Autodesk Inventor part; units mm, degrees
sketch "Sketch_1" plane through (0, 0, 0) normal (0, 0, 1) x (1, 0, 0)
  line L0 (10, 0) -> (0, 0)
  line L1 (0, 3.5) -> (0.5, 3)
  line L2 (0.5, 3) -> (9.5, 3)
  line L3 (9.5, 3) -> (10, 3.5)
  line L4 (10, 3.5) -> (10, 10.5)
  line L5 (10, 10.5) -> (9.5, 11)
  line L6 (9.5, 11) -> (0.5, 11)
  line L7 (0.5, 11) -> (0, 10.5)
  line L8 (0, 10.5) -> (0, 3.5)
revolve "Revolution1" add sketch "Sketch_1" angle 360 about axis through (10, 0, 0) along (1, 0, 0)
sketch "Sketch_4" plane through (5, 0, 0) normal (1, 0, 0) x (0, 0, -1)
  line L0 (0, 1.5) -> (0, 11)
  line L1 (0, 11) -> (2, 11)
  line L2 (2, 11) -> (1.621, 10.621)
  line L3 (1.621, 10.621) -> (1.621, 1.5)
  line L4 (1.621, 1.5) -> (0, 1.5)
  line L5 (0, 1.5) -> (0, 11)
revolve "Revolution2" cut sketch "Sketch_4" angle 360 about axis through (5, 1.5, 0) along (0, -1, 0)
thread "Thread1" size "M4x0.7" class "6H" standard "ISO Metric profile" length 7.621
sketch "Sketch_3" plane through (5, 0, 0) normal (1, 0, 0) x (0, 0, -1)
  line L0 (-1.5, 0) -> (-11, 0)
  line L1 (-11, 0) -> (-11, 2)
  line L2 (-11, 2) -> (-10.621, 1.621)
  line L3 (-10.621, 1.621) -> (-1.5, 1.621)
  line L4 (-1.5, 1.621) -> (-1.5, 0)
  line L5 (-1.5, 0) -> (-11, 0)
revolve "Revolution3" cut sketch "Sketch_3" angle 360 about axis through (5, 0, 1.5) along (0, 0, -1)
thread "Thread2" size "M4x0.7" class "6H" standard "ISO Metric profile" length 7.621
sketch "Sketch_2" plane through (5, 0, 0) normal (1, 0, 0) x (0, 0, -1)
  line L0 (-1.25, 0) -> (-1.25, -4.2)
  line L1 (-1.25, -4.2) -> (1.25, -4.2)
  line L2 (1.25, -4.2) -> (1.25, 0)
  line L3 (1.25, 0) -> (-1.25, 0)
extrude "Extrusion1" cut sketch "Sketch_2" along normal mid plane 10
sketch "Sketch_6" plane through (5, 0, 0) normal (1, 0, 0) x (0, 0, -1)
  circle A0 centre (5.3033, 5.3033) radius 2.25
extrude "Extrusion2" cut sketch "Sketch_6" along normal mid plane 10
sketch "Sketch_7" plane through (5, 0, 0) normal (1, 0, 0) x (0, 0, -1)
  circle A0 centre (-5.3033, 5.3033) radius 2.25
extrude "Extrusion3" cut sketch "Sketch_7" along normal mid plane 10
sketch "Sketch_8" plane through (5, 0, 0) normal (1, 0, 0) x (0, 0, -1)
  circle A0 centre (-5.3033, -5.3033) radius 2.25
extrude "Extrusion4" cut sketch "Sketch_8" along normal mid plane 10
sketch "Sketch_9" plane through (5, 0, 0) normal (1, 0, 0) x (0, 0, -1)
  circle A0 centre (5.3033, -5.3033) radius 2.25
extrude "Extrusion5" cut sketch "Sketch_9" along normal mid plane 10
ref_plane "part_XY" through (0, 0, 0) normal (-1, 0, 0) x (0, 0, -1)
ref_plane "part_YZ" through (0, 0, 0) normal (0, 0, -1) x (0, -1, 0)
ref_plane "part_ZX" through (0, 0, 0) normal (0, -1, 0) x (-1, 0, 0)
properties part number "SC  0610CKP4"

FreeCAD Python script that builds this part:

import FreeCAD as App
import Part
import Sketcher
Q = App.Units.Quantity

doc = App.newDocument("Part")
body = doc.addObject("PartDesign::Body", "Body")

# Sketch on XY plane
sketch1 = doc.addObject("Sketcher::SketchObject", "Sketch")
body.addObject(sketch1)
sketch1.AttachmentSupport = (doc.XY_Plane, [""])
sketch1.MapMode = "FlatFace"
sketch1.addGeometry([
    Part.LineSegment(App.Vector(0, 10.5, 0), App.Vector(0, 3.5, 0)),  # 0
    Part.LineSegment(App.Vector(0, 3.5, 0), App.Vector(0.5, 3, 0)),  # 1
    Part.LineSegment(App.Vector(0.5, 3, 0), App.Vector(9.5, 3, 0)),  # 2
    Part.LineSegment(App.Vector(9.5, 3, 0), App.Vector(10, 3.5, 0)),  # 3
    Part.LineSegment(App.Vector(10, 3.5, 0), App.Vector(10, 10.5, 0)),  # 4
    Part.LineSegment(App.Vector(10, 10.5, 0), App.Vector(9.5, 11, 0)),  # 5
    Part.LineSegment(App.Vector(9.5, 11, 0), App.Vector(0.5, 11, 0)),  # 6
    Part.LineSegment(App.Vector(0.5, 11, 0), App.Vector(0, 10.5, 0)),  # 7
], False)
sketch1.addConstraint([
    Sketcher.Constraint("Coincident", 0, 2, 1, 1),
    Sketcher.Constraint("Coincident", 1, 2, 2, 1),
    Sketcher.Constraint("Coincident", 2, 2, 3, 1),
    Sketcher.Constraint("Coincident", 3, 2, 4, 1),
    Sketcher.Constraint("Coincident", 4, 2, 5, 1),
    Sketcher.Constraint("Coincident", 5, 2, 6, 1),
    Sketcher.Constraint("Coincident", 6, 2, 7, 1),
    Sketcher.Constraint("Coincident", 7, 2, 0, 1),
    Sketcher.Constraint("Vertical", 0),
    Sketcher.Constraint("Horizontal", 2),
    Sketcher.Constraint("Vertical", 4),
    Sketcher.Constraint("Horizontal", 6),
    Sketcher.Constraint("PointOnObject", 0, 2, -2),
    Sketcher.Constraint("Perpendicular", 1, 3),
    Sketcher.Constraint("Perpendicular", 3, 5),
    Sketcher.Constraint("Perpendicular", 5, 7),
    Sketcher.Constraint("Horizontal", 0, 2, 3, 2),
    Sketcher.Constraint("Horizontal", 4, 2, 7, 2),
    Sketcher.Constraint("Vertical", 2, 2, 5, 2),
    Sketcher.Constraint("Vertical", 1, 2, 6, 2),
    Sketcher.Constraint("DistanceX", 2, 1, 2, 2, Q("9 mm")),
    Sketcher.Constraint("DistanceY", 0, 2, 0, 1, Q("7 mm")),
    Sketcher.Constraint("DistanceY", -1, 1, 1, 2, Q("3 mm")),
    Sketcher.Constraint("DistanceX", -1, 1, 3, 2, Q("10 mm")),
])
revolution = doc.addObject("PartDesign::Revolution", "Revolution")
body.addObject(revolution)
revolution.Profile = sketch1
revolution.ReferenceAxis = (sketch1, ["H_Axis"])
revolution.Angle = 360

# Sketch on YZ plane
sketch2 = doc.addObject("Sketcher::SketchObject", "Sketch001")
body.addObject(sketch2)
sketch2.AttachmentSupport = (doc.YZ_Plane, [""])
sketch2.MapMode = "FlatFace"
sketch2.AttachmentOffset = App.Placement(App.Vector(0, 0, 5), App.Rotation())
sketch2.addGeometry([
    Part.LineSegment(App.Vector(11, 0, 0), App.Vector(1.5, 0, 0)),  # 0
    Part.LineSegment(App.Vector(1.5, 0, 0), App.Vector(1.5, -1.6, 0)),  # 1
    Part.LineSegment(App.Vector(1.5, -1.6, 0), App.Vector(10.6, -1.6, 0)),  # 2
    Part.LineSegment(App.Vector(10.6, -1.6, 0), App.Vector(11, -2, 0)),  # 3
    Part.LineSegment(App.Vector(11, -2, 0), App.Vector(11, 0, 0)),  # 4
], False)
sketch2.addConstraint([
    Sketcher.Constraint("Coincident", 0, 2, 1, 1),
    Sketcher.Constraint("Coincident", 1, 2, 2, 1),
    Sketcher.Constraint("Coincident", 2, 2, 3, 1),
    Sketcher.Constraint("Coincident", 3, 2, 4, 1),
    Sketcher.Constraint("Coincident", 4, 2, 0, 1),
    Sketcher.Constraint("Horizontal", 0),
    Sketcher.Constraint("Vertical", 1),
    Sketcher.Constraint("Horizontal", 2),
    Sketcher.Constraint("Vertical", 4),
    Sketcher.Constraint("PointOnObject", 0, 2, -1),
    Sketcher.Constraint("DistanceY", 4, 1, 4, 2, Q("2 mm")),
    Sketcher.Constraint("Angle", 3, Q("-45 deg")),
    Sketcher.Constraint("DistanceX", 0, 2, 0, 1, Q("9.5 mm")),
    Sketcher.Constraint("DistanceX", -1, 1, 3, 2, Q("11 mm")),
    Sketcher.Constraint("DistanceX", 2, 1, 2, 2, Q("9.121 mm")),
])
groove = doc.addObject("PartDesign::Groove", "Groove")
body.addObject(groove)
groove.Profile = sketch2
groove.ReferenceAxis = (sketch2, ["H_Axis"])
groove.Angle = 360

# Sketch on YZ plane
sketch3 = doc.addObject("Sketcher::SketchObject", "Sketch002")
body.addObject(sketch3)
sketch3.AttachmentSupport = (doc.YZ_Plane, [""])
sketch3.MapMode = "FlatFace"
sketch3.AttachmentOffset = App.Placement(App.Vector(0, 0, 5), App.Rotation())
sketch3.addGeometry([
    Part.LineSegment(App.Vector(0, 11, 0), App.Vector(0, 1.5, 0)),  # 0
    Part.LineSegment(App.Vector(0, 1.5, 0), App.Vector(1.6, 1.5, 0)),  # 1
    Part.LineSegment(App.Vector(1.6, 1.5, 0), App.Vector(1.6, 10.6, 0)),  # 2
    Part.LineSegment(App.Vector(1.6, 10.6, 0), App.Vector(2, 11, 0)),  # 3
    Part.LineSegment(App.Vector(2, 11, 0), App.Vector(0, 11, 0)),  # 4
], False)
sketch3.addConstraint([
    Sketcher.Constraint("Coincident", 0, 2, 1, 1),
    Sketcher.Constraint("Coincident", 1, 2, 2, 1),
    Sketcher.Constraint("Coincident", 2, 2, 3, 1),
    Sketcher.Constraint("Coincident", 3, 2, 4, 1),
    Sketcher.Constraint("Coincident", 4, 2, 0, 1),
    Sketcher.Constraint("Vertical", 0),
    Sketcher.Constraint("Horizontal", 1),
    Sketcher.Constraint("Vertical", 2),
    Sketcher.Constraint("Horizontal", 4),
    Sketcher.Constraint("PointOnObject", 0, 2, -2),
    Sketcher.Constraint("DistanceX", 4, 2, 4, 1, Q("2 mm")),
    Sketcher.Constraint("Angle", 3, Q("45 deg")),
    Sketcher.Constraint("DistanceY", 0, 2, 0, 1, Q("9.5 mm")),
    Sketcher.Constraint("DistanceY", -1, 1, 3, 2, Q("11 mm")),
    Sketcher.Constraint("DistanceX", 1, 1, 1, 2, Q("1.621 mm")),
])
groove2 = doc.addObject("PartDesign::Groove", "Groove001")
body.addObject(groove2)
groove2.Profile = sketch3
groove2.ReferenceAxis = (sketch3, ["V_Axis"])
groove2.Angle = 360

# Sketch on YZ plane
sketch4 = doc.addObject("Sketcher::SketchObject", "Sketch003")
body.addObject(sketch4)
sketch4.AttachmentSupport = (doc.YZ_Plane, [""])
sketch4.MapMode = "FlatFace"
sketch4.AttachmentOffset = App.Placement(App.Vector(0, 0, 5), App.Rotation())
sketch4.addGeometry([
    Part.LineSegment(App.Vector(0, -1.2, 0), App.Vector(0, 1.2, 0)),
    Part.LineSegment(App.Vector(0, 1.2, 0), App.Vector(-4.2, 1.2, 0)),
    Part.LineSegment(App.Vector(-4.2, 1.2, 0), App.Vector(-4.2, -1.2, 0)),
    Part.LineSegment(App.Vector(-4.2, -1.2, 0), App.Vector(0, -1.2, 0)),
], False)
sketch4.addConstraint([
    Sketcher.Constraint("Coincident", 0, 2, 1, 1),
    Sketcher.Constraint("Coincident", 1, 2, 2, 1),
    Sketcher.Constraint("Coincident", 2, 2, 3, 1),
    Sketcher.Constraint("Coincident", 3, 2, 0, 1),
    Sketcher.Constraint("Vertical", 0),
    Sketcher.Constraint("Horizontal", 1),
    Sketcher.Constraint("Vertical", 2),
    Sketcher.Constraint("Horizontal", 3),
    Sketcher.Constraint("Symmetric", 0, 2, 3, 2, -1, 1),
    Sketcher.Constraint("DistanceX", 1, 2, 1, 1, Q("4.2 mm")),
    Sketcher.Constraint("DistanceY", 0, 1, 0, 2, Q("2.5 mm")),
])
pocket1 = doc.addObject("PartDesign::Pocket", "Pocket")
body.addObject(pocket1)
pocket1.Profile = sketch4
pocket1.Length = 10
pocket1.Midplane = True

# Sketch on YZ plane
sketch5 = doc.addObject("Sketcher::SketchObject", "Sketch004")
body.addObject(sketch5)
sketch5.AttachmentSupport = (doc.YZ_Plane, [""])
sketch5.MapMode = "FlatFace"
sketch5.AttachmentOffset = App.Placement(App.Vector(0, 0, 5), App.Rotation())
sketch5.addGeometry(Part.Circle(App.Vector(5.3, -5.3, 0), App.Vector(0, 0, 1), 2.2), False)
sketch5.addConstraint([
    Sketcher.Constraint("Diameter", 0, Q("4.5 mm")),
    Sketcher.Constraint("DistanceX", -1, 1, 0, 3, Q("5.3033 mm")),
    Sketcher.Constraint("DistanceY", 0, 3, -1, 1, Q("5.3033 mm")),
])
pocket2 = doc.addObject("PartDesign::Pocket", "Pocket001")
body.addObject(pocket2)
pocket2.Profile = sketch5
pocket2.Length = 10
pocket2.Midplane = True

# Sketch on YZ plane
sketch6 = doc.addObject("Sketcher::SketchObject", "Sketch005")
body.addObject(sketch6)
sketch6.AttachmentSupport = (doc.YZ_Plane, [""])
sketch6.MapMode = "FlatFace"
sketch6.AttachmentOffset = App.Placement(App.Vector(0, 0, 5), App.Rotation())
sketch6.addGeometry(Part.Circle(App.Vector(5.3, 5.3, 0), App.Vector(0, 0, 1), 2.2), False)
sketch6.addConstraint([
    Sketcher.Constraint("Diameter", 0, Q("4.5 mm")),
    Sketcher.Constraint("DistanceX", -1, 1, 0, 3, Q("5.3033 mm")),
    Sketcher.Constraint("DistanceY", -1, 1, 0, 3, Q("5.3033 mm")),
])
pocket3 = doc.addObject("PartDesign::Pocket", "Pocket002")
body.addObject(pocket3)
pocket3.Profile = sketch6
pocket3.Length = 10
pocket3.Midplane = True

# Sketch on YZ plane
sketch7 = doc.addObject("Sketcher::SketchObject", "Sketch006")
body.addObject(sketch7)
sketch7.AttachmentSupport = (doc.YZ_Plane, [""])
sketch7.MapMode = "FlatFace"
sketch7.AttachmentOffset = App.Placement(App.Vector(0, 0, 5), App.Rotation())
sketch7.addGeometry(Part.Circle(App.Vector(-5.3, 5.3, 0), App.Vector(0, 0, 1), 2.2), False)
sketch7.addConstraint([
    Sketcher.Constraint("Diameter", 0, Q("4.5 mm")),
    Sketcher.Constraint("DistanceX", 0, 3, -1, 1, Q("5.3033 mm")),
    Sketcher.Constraint("DistanceY", -1, 1, 0, 3, Q("5.3033 mm")),
])
pocket4 = doc.addObject("PartDesign::Pocket", "Pocket003")
body.addObject(pocket4)
pocket4.Profile = sketch7
pocket4.Length = 10
pocket4.Midplane = True

# Sketch on YZ plane
sketch8 = doc.addObject("Sketcher::SketchObject", "Sketch007")
body.addObject(sketch8)
sketch8.AttachmentSupport = (doc.YZ_Plane, [""])
sketch8.MapMode = "FlatFace"
sketch8.AttachmentOffset = App.Placement(App.Vector(0, 0, 5), App.Rotation())
sketch8.addGeometry(Part.Circle(App.Vector(-5.3, -5.3, 0), App.Vector(0, 0, 1), 2.2), False)
sketch8.addConstraint([
    Sketcher.Constraint("Diameter", 0, Q("4.5 mm")),
    Sketcher.Constraint("DistanceX", 0, 3, -1, 1, Q("5.3033 mm")),
    Sketcher.Constraint("DistanceY", 0, 3, -1, 1, Q("5.3033 mm")),
])
pocket5 = doc.addObject("PartDesign::Pocket", "Pocket004")
body.addObject(pocket5)
pocket5.Profile = sketch8
pocket5.Length = 10
pocket5.Midplane = True

doc.recompute()
